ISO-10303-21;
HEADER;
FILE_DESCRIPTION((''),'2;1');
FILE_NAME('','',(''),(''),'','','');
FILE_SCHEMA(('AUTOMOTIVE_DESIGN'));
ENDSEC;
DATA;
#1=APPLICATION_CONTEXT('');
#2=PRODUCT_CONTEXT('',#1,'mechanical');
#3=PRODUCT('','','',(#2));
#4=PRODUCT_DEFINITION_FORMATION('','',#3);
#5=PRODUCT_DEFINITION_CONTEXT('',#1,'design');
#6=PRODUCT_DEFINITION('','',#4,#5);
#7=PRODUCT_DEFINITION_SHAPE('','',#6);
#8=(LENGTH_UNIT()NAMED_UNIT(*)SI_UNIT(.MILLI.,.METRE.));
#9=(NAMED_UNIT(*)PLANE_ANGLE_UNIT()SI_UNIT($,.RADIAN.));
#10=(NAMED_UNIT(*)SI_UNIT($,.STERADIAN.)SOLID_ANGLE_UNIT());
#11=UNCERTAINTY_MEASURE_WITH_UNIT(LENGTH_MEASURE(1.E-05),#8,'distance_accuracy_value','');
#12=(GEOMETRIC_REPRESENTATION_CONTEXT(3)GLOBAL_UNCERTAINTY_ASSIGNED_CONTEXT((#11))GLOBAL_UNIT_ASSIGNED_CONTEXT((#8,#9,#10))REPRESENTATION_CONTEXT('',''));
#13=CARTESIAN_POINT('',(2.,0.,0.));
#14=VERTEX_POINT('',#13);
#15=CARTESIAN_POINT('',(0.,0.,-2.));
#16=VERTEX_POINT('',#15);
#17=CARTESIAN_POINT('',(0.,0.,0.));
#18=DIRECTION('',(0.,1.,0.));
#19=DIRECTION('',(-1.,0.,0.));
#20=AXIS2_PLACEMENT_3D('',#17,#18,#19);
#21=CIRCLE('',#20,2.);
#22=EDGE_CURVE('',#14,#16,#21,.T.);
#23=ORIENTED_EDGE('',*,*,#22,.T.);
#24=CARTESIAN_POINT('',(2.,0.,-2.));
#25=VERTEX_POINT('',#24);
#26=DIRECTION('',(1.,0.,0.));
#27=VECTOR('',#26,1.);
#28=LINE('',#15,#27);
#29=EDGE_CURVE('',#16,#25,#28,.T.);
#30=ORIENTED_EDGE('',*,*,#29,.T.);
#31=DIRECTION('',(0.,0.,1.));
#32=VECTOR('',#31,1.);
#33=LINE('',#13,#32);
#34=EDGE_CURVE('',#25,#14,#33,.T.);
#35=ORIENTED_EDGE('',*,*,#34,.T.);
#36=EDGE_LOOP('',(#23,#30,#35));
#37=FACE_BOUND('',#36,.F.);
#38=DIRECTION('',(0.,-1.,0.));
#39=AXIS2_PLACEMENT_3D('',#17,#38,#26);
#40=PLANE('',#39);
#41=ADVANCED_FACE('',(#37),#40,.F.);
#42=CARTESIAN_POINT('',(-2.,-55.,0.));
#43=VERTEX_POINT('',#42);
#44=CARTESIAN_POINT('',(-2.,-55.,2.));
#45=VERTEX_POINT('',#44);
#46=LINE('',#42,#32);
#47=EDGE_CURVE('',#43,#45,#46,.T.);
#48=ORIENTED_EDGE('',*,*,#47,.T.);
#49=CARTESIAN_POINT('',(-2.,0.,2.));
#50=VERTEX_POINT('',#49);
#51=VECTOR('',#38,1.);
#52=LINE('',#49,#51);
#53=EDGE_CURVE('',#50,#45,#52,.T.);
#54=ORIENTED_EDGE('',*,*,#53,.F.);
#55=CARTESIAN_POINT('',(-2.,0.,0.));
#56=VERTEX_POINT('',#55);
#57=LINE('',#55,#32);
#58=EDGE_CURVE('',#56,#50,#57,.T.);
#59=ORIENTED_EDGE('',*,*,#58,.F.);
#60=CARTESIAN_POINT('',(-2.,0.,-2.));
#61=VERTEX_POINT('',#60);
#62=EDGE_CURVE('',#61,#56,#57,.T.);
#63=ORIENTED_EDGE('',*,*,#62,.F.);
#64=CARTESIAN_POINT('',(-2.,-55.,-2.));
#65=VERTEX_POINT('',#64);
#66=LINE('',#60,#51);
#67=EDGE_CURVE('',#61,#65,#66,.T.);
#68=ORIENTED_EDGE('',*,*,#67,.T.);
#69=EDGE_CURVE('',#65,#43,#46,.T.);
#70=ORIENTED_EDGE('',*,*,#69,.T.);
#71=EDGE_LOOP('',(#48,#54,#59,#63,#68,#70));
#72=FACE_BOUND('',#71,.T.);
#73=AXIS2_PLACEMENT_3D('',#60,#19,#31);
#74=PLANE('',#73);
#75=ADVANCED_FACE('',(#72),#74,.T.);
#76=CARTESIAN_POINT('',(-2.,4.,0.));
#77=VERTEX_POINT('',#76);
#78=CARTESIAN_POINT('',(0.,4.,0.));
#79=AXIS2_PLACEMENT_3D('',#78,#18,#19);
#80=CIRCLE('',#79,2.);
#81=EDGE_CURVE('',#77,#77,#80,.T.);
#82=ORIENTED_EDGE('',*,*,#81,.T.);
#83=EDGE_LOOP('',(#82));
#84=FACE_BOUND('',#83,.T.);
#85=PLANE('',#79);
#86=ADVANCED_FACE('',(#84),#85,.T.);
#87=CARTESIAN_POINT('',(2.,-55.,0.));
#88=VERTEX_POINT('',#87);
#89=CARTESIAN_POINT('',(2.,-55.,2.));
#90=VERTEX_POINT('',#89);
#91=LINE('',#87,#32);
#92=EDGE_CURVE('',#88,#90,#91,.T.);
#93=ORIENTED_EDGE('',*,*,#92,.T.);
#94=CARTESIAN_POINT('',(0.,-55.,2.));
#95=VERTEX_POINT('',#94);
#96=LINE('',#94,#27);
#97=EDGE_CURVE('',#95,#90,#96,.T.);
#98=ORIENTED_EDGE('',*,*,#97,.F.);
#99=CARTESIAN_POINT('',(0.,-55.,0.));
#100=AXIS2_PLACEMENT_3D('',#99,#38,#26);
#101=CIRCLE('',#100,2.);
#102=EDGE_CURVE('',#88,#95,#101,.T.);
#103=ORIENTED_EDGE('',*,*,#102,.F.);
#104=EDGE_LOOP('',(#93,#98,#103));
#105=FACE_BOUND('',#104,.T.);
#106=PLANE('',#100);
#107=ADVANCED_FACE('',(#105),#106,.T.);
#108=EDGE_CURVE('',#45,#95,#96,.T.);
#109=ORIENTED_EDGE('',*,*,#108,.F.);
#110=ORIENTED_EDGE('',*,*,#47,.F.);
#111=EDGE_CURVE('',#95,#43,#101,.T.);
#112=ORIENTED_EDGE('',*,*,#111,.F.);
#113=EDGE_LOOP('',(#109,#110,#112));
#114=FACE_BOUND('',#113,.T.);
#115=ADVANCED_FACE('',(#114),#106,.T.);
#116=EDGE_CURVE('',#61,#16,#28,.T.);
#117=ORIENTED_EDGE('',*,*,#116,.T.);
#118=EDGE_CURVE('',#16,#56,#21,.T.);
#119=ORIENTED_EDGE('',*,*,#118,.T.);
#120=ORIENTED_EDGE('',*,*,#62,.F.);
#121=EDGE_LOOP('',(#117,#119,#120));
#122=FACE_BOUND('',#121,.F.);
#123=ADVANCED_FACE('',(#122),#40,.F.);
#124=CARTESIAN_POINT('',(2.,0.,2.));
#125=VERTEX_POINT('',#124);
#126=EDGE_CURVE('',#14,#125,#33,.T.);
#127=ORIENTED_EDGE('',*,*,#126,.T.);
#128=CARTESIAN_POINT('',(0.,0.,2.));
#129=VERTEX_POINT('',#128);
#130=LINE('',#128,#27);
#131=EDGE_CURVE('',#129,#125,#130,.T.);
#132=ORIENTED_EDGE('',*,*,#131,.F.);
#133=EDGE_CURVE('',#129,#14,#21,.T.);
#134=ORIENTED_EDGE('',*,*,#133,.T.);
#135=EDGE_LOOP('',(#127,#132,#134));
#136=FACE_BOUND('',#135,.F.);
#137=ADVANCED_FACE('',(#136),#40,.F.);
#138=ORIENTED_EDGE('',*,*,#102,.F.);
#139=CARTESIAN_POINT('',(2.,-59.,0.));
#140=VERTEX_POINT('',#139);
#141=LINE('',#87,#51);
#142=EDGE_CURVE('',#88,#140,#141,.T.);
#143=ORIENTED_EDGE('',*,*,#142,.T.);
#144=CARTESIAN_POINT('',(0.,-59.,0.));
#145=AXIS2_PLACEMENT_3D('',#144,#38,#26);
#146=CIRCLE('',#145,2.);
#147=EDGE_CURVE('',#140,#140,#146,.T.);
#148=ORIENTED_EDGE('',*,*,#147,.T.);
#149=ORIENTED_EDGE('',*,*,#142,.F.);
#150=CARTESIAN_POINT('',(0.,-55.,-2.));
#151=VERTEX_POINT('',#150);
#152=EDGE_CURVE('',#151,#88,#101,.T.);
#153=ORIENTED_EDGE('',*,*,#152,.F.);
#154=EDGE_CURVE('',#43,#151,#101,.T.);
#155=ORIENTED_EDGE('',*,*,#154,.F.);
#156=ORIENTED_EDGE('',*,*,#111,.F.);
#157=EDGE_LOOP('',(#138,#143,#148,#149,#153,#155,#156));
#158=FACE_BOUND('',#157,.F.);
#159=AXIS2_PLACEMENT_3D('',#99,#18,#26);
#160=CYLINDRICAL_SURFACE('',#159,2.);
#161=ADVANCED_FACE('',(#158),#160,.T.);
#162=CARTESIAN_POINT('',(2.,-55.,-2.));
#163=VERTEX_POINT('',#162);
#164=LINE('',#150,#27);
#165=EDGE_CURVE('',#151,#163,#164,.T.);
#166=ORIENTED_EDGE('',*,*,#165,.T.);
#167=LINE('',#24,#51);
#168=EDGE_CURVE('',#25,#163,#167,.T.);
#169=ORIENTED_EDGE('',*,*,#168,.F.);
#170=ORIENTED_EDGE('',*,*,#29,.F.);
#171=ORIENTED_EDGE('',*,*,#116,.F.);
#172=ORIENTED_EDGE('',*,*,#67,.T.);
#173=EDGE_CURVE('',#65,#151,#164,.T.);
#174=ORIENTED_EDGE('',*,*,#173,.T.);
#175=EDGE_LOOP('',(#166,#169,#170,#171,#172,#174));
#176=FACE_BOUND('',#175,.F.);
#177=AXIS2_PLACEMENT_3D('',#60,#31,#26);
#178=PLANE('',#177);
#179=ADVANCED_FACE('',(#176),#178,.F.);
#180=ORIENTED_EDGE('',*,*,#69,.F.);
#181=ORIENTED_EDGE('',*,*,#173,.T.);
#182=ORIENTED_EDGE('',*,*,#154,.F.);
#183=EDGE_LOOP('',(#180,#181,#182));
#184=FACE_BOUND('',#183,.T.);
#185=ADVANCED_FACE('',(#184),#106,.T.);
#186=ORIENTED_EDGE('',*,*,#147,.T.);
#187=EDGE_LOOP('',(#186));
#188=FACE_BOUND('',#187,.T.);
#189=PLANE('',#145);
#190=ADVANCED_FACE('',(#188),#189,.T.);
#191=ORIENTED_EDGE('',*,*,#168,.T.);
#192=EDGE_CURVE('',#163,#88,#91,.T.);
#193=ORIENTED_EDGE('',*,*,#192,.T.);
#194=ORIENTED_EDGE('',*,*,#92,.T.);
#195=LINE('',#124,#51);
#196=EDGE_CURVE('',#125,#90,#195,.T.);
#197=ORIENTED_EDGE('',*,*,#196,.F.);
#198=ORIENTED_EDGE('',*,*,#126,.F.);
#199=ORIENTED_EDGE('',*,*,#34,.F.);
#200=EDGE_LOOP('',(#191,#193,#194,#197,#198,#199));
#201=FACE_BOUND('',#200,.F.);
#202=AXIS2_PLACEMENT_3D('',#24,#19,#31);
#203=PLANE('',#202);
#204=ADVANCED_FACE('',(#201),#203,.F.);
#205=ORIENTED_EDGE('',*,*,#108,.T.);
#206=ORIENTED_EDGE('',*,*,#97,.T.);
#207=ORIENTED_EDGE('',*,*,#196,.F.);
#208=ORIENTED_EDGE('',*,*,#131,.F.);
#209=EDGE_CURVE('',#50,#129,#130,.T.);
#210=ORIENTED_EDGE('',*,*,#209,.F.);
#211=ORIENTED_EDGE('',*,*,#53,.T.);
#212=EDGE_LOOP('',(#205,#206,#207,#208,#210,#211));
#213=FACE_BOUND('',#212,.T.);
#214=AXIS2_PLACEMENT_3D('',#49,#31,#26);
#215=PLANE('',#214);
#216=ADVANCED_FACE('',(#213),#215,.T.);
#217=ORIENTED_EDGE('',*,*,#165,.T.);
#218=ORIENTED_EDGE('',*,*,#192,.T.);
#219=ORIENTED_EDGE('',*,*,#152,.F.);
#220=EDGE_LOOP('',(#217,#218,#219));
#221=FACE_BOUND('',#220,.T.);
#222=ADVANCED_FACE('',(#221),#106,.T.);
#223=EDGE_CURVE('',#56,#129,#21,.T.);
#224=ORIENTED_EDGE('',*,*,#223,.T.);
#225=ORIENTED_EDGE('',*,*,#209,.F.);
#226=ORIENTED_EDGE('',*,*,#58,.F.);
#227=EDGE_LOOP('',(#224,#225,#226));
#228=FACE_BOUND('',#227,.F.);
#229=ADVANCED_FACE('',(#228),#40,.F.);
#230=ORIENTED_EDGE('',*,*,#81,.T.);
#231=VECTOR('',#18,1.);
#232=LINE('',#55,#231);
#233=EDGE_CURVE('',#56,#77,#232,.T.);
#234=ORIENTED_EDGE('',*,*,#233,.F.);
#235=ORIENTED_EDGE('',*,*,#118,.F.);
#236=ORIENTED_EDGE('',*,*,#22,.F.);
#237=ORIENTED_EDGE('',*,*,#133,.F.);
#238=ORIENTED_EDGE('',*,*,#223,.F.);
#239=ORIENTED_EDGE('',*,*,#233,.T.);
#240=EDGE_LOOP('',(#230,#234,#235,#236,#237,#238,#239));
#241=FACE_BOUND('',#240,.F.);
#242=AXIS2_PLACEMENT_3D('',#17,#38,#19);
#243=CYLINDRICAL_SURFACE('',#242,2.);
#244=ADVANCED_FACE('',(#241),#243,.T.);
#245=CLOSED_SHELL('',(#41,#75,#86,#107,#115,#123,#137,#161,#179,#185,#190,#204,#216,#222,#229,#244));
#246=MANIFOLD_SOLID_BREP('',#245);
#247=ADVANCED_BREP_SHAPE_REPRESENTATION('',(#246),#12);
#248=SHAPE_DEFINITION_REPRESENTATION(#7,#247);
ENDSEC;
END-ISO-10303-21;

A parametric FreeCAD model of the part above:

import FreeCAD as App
import Part
import Sketcher

V = App.Vector


def add_polygon(sketch, points):
    """Adds a closed chain of lines whose ends are joined by coincident constraints."""
    first, n = sketch.GeometryCount, len(points)
    for a, b in zip(points, points[1:] + points[:1]):
        sketch.addGeometry(Part.LineSegment(App.Vector(*a, 0), App.Vector(*b, 0)), False)
    for i in range(n):
        sketch.addConstraint(Sketcher.Constraint("Coincident", first + i, 2, first + (i + 1) % n, 1))

doc = App.newDocument("Part")
body = doc.addObject("PartDesign::Body", "Body")

# Sketch on XZ plane
sketch1 = body.newObject("Sketcher::SketchObject", "Sketch")
sketch1.AttachmentSupport = (doc.getObject("XZ_Plane"), [""])
sketch1.MapMode = "FlatFace"
add_polygon(sketch1, [(-2, 2), (-2, -2), (2, -2), (2, 2)])  # lines 0-3
sketch1.addConstraint([
    Sketcher.Constraint("Vertical", 0),
    Sketcher.Constraint("Horizontal", 1),
    Sketcher.Constraint("Vertical", 2),
    Sketcher.Constraint("Horizontal", 3),
    Sketcher.Constraint("Symmetric", 0, 2, 2, 2, -1, 1),
    Sketcher.Constraint("Equal", 3, 0),
    Sketcher.Constraint("DistanceX", 1, 1, 1, 2, 4.0),
])
pad1 = body.newObject("PartDesign::Pad", "Pad")
pad1.Profile = sketch1
pad1.Length = 55

# Sketch on XZ plane
sketch2 = body.newObject("Sketcher::SketchObject", "Sketch001")
sketch2.AttachmentSupport = (doc.getObject("XZ_Plane"), [""])
sketch2.MapMode = "FlatFace"
sketch2.addGeometry(Part.Circle(V(0, 0, 0), V(0, 0, 1), 2), False)
sketch2.addConstraint([
    Sketcher.Constraint("Coincident", 0, 3, -1, 1),
    Sketcher.Constraint("Diameter", 0, 4.0),
])
pad2 = body.newObject("PartDesign::Pad", "Pad001")
pad2.Profile = sketch2
pad2.Length = 4
pad2.Reversed = True

# Sketch on XZ plane
sketch3 = body.newObject("Sketcher::SketchObject", "Sketch002")
sketch3.AttachmentSupport = (doc.getObject("XZ_Plane"), [""])
sketch3.MapMode = "FlatFace"
sketch3.AttachmentOffset = App.Placement(V(0, 0, 55), App.Rotation())
sketch3.addGeometry(Part.Circle(V(0, 0, 0), V(0, 0, 1), 2), False)
sketch3.addConstraint([
    Sketcher.Constraint("Coincident", 0, 3, -1, 1),
    Sketcher.Constraint("Diameter", 0, 4.0),
])
pad3 = body.newObject("PartDesign::Pad", "Pad002")
pad3.Profile = sketch3
pad3.Length = 4

doc.recompute()
